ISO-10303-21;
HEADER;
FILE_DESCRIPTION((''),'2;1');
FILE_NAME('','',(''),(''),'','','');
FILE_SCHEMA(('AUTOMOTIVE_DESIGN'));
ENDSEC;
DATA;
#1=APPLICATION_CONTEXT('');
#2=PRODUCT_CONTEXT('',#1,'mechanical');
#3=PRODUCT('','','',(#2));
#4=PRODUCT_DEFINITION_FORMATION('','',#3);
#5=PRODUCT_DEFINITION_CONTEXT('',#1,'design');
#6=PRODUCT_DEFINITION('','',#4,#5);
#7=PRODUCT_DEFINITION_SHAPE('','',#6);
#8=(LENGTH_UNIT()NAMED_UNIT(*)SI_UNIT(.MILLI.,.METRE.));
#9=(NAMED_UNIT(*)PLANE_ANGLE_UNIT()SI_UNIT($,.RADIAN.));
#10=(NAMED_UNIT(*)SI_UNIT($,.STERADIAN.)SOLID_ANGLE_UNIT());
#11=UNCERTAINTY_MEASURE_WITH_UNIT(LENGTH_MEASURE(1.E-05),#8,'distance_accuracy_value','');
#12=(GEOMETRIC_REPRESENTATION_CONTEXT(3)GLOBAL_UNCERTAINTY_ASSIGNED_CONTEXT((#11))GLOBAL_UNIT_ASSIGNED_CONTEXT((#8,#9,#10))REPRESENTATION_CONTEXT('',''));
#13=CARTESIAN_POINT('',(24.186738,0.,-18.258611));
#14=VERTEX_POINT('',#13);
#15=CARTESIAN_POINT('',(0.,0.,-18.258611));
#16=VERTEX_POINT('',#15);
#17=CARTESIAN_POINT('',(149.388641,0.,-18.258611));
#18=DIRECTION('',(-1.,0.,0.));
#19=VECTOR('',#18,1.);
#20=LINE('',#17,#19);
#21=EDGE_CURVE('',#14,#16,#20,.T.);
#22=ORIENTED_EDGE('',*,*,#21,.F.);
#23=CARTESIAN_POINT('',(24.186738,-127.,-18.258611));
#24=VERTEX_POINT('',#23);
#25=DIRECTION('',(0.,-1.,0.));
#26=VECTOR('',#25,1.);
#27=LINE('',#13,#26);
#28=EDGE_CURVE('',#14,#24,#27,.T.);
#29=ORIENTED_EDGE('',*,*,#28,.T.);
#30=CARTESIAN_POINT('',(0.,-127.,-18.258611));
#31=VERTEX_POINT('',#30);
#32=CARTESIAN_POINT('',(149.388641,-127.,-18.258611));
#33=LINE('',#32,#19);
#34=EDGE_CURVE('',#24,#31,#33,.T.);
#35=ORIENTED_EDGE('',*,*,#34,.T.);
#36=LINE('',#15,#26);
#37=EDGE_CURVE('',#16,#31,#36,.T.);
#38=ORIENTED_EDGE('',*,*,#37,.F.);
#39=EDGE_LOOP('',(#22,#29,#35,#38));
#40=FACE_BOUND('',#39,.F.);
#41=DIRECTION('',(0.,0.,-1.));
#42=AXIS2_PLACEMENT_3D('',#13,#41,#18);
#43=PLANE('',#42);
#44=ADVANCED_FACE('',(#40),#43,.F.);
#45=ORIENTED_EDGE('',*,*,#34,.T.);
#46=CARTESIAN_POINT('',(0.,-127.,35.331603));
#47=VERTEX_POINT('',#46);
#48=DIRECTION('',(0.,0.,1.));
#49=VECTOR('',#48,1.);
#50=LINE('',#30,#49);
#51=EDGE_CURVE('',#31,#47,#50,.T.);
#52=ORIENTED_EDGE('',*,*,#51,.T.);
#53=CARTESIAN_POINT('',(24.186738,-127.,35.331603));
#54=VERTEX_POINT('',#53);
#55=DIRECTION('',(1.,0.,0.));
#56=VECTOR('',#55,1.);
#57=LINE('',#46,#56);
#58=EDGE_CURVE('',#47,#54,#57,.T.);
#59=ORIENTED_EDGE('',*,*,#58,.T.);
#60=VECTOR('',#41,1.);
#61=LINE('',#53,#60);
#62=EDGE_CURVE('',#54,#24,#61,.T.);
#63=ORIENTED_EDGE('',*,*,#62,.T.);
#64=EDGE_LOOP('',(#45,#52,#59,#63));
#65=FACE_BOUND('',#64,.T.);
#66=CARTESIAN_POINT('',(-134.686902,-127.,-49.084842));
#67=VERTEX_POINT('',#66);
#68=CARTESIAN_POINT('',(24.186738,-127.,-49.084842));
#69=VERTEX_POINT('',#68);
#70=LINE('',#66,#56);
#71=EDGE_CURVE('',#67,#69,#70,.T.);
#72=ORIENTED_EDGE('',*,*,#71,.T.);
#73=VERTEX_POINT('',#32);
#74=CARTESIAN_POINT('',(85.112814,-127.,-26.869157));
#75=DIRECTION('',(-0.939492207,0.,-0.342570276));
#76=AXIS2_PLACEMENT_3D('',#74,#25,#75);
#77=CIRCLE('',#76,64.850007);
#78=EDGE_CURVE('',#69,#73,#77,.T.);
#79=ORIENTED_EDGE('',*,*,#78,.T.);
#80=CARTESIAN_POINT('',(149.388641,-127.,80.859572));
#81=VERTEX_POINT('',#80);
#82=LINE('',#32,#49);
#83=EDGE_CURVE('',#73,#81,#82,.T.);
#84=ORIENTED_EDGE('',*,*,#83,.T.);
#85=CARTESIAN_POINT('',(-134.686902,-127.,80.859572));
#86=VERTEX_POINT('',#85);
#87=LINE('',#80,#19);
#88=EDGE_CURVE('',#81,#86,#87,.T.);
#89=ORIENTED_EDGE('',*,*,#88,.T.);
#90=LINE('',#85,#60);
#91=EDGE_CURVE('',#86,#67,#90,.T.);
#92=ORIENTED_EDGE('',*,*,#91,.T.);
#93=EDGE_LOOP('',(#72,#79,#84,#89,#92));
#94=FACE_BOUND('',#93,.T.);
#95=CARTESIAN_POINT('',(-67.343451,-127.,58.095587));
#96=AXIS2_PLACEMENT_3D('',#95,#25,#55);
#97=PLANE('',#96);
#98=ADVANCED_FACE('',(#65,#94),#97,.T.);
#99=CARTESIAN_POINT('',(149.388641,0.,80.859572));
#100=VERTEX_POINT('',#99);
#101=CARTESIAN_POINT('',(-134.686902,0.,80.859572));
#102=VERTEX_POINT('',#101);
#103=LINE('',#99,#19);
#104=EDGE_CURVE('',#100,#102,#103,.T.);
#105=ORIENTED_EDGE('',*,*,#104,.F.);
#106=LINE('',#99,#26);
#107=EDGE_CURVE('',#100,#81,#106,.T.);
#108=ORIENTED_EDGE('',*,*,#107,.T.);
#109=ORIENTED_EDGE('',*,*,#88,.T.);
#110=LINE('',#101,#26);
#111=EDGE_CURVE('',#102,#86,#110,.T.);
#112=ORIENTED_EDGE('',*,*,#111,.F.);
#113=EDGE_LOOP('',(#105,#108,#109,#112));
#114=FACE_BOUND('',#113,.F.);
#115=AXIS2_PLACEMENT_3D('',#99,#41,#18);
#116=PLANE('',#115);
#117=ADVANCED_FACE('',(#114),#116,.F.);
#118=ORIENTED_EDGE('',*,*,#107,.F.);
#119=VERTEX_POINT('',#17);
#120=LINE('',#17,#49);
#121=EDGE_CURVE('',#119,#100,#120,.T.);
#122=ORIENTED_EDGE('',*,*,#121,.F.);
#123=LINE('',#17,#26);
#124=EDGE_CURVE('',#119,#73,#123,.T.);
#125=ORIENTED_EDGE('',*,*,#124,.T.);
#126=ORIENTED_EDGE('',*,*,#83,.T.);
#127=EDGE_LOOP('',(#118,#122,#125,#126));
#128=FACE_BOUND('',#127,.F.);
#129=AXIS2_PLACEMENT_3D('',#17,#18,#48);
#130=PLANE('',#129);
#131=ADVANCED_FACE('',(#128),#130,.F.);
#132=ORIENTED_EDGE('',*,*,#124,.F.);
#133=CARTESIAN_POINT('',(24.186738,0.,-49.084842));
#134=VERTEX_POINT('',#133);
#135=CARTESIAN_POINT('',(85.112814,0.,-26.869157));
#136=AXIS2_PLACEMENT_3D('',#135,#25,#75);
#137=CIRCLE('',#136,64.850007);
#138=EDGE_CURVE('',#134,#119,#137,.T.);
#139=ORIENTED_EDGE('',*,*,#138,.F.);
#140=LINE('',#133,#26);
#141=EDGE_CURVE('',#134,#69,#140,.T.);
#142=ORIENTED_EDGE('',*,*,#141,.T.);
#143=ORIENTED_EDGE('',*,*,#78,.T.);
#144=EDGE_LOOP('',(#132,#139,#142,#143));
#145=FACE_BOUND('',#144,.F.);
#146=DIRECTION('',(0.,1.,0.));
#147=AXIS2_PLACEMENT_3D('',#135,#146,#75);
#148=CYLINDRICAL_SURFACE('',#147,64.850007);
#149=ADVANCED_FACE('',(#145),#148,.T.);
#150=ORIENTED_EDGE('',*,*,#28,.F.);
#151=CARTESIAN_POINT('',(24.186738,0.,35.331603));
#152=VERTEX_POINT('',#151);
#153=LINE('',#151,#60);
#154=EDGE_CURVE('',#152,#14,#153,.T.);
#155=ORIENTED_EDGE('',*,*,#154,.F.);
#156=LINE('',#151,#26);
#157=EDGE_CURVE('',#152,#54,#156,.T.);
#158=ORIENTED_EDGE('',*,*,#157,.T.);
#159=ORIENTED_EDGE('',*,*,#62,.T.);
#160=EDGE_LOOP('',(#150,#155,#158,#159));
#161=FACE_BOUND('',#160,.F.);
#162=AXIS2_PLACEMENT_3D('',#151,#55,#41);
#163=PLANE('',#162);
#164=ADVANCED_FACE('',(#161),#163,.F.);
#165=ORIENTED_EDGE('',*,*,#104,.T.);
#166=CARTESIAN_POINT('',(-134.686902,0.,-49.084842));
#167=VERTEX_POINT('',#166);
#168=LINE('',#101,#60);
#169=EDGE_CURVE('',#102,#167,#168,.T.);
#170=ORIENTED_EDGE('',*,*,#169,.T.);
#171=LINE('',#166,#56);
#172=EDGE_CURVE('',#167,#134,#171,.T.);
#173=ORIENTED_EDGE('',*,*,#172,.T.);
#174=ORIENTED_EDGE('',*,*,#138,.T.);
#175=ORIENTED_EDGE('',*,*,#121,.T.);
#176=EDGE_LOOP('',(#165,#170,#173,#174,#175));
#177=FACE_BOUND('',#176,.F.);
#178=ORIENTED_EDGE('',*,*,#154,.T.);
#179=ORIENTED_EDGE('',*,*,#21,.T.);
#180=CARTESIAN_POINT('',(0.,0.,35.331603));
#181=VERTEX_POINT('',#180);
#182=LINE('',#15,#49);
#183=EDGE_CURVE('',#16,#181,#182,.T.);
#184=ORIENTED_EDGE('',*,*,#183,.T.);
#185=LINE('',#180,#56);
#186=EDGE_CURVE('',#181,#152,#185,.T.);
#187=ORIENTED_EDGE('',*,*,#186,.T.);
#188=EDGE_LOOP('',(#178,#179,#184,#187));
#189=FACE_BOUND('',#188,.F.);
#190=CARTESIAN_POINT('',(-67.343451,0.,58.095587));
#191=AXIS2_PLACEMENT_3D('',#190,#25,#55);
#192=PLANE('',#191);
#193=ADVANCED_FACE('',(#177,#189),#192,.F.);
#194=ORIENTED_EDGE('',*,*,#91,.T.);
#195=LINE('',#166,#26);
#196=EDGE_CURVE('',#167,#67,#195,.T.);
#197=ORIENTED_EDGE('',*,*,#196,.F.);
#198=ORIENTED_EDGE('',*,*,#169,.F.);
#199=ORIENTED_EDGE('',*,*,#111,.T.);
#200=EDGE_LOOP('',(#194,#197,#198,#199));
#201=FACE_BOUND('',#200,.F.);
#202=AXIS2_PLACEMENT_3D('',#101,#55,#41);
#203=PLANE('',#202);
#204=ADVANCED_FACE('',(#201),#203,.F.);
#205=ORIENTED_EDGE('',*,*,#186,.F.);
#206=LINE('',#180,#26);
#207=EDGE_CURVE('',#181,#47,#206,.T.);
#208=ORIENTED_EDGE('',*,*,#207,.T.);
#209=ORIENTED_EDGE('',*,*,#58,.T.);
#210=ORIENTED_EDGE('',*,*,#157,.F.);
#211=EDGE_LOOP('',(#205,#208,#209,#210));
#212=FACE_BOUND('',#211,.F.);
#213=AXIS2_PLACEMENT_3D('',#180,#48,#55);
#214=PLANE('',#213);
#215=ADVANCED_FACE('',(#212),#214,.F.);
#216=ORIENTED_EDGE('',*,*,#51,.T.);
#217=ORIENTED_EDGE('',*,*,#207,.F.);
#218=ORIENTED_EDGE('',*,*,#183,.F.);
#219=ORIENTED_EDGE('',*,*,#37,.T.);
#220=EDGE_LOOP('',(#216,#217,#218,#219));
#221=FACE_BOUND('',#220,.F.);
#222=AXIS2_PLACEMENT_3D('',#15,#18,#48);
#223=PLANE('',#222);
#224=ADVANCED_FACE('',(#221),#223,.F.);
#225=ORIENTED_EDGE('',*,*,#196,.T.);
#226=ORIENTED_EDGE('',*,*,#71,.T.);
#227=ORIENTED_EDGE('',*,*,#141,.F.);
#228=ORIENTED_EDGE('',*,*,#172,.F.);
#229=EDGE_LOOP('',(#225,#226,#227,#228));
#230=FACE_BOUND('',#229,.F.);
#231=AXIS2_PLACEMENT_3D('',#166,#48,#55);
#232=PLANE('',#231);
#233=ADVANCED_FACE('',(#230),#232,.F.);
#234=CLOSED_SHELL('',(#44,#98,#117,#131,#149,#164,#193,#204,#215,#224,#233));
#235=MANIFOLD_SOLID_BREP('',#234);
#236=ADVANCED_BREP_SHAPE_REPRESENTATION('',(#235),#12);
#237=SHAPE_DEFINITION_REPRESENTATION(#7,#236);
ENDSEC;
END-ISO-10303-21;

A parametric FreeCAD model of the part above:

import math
import FreeCAD as App
import Part
import Sketcher
from FreeCAD import Vector
Q = App.Units.Quantity

doc = App.newDocument("Part")
body = doc.addObject("PartDesign::Body", "Body")

# Sketch on XZ plane
sketch1 = body.newObject("Sketcher::SketchObject", "Sketch")
sketch1.AttachmentSupport = (doc.getObject("XZ_Plane"), [""])
sketch1.MapMode = "FlatFace"
sketch1.addGeometry(Part.LineSegment(Vector(-135, 81, 0), Vector(-135, -49, 0)), False)
sketch1.addGeometry(Part.LineSegment(Vector(-135, -49, 0), Vector(24, -49, 0)), False)
sketch1.addGeometry(Part.ArcOfCircle(Part.Circle(Vector(85, -27, 0), Vector(0, 0, 1), 65), math.radians(-160), math.radians(8)), False)
sketch1.addGeometry(Part.LineSegment(Vector(149, -18, 0), Vector(149, 81, 0)), False)
sketch1.addGeometry(Part.LineSegment(Vector(149, 81, 0), Vector(-135, 81, 0)), False)
sketch1.addGeometry(Part.LineSegment(Vector(24, -18, 0), Vector(0, -18, 0)), False)
sketch1.addGeometry(Part.LineSegment(Vector(0, -18, 0), Vector(0, 35, 0)), False)
sketch1.addGeometry(Part.LineSegment(Vector(0, 35, 0), Vector(24, 35, 0)), False)
sketch1.addGeometry(Part.LineSegment(Vector(24, 35, 0), Vector(24, -18, 0)), False)
sketch1.addConstraint(Sketcher.Constraint("Coincident", 0, 2, 1, 1))
sketch1.addConstraint(Sketcher.Constraint("Coincident", 1, 2, 2, 1))
sketch1.addConstraint(Sketcher.Constraint("Coincident", 2, 2, 3, 1))
sketch1.addConstraint(Sketcher.Constraint("Coincident", 3, 2, 4, 1))
sketch1.addConstraint(Sketcher.Constraint("Coincident", 4, 2, 0, 1))
sketch1.addConstraint(Sketcher.Constraint("Coincident", 5, 2, 6, 1))
sketch1.addConstraint(Sketcher.Constraint("Coincident", 6, 2, 7, 1))
sketch1.addConstraint(Sketcher.Constraint("Coincident", 7, 2, 8, 1))
sketch1.addConstraint(Sketcher.Constraint("Coincident", 8, 2, 5, 1))
sketch1.addConstraint(Sketcher.Constraint("Vertical", 0))
sketch1.addConstraint(Sketcher.Constraint("Horizontal", 1))
sketch1.addConstraint(Sketcher.Constraint("Vertical", 3))
sketch1.addConstraint(Sketcher.Constraint("Horizontal", 4))
sketch1.addConstraint(Sketcher.Constraint("Horizontal", 5))
sketch1.addConstraint(Sketcher.Constraint("Vertical", 6))
sketch1.addConstraint(Sketcher.Constraint("Horizontal", 7))
sketch1.addConstraint(Sketcher.Constraint("Vertical", 8))
sketch1.addConstraint(Sketcher.Constraint("PointOnObject", 5, 2, -2))
sketch1.addConstraint(Sketcher.Constraint("Horizontal", 2, 2, 5, 2))
sketch1.addConstraint(Sketcher.Constraint("Vertical", 1, 2, 7, 2))
sketch1.addConstraint(Sketcher.Constraint("Radius", 2, Q("64.850007 mm")))
sketch1.addConstraint(Sketcher.Constraint("DistanceX", 1, 1, 1, 2, Q("158.87364 mm")))
sketch1.addConstraint(Sketcher.Constraint("DistanceX", 4, 2, 4, 1, Q("284.075543 mm")))
sketch1.addConstraint(Sketcher.Constraint("DistanceX", 5, 2, 5, 1, Q("24.186738 mm")))
sketch1.addConstraint(Sketcher.Constraint("DistanceY", 0, 2, 0, 1, Q("129.944414 mm")))
sketch1.addConstraint(Sketcher.Constraint("DistanceY", 3, 1, 3, 2, Q("99.118182 mm")))
sketch1.addConstraint(Sketcher.Constraint("DistanceY", 6, 1, 6, 2, Q("53.590214 mm")))
sketch1.addConstraint(Sketcher.Constraint("DistanceY", 2, 2, -1, 1, Q("18.258611 mm")))
pad1 = body.newObject("PartDesign::Pad", "Pad")
pad1.Profile = sketch1
pad1.Length = Q("5 in")

doc.recompute()
